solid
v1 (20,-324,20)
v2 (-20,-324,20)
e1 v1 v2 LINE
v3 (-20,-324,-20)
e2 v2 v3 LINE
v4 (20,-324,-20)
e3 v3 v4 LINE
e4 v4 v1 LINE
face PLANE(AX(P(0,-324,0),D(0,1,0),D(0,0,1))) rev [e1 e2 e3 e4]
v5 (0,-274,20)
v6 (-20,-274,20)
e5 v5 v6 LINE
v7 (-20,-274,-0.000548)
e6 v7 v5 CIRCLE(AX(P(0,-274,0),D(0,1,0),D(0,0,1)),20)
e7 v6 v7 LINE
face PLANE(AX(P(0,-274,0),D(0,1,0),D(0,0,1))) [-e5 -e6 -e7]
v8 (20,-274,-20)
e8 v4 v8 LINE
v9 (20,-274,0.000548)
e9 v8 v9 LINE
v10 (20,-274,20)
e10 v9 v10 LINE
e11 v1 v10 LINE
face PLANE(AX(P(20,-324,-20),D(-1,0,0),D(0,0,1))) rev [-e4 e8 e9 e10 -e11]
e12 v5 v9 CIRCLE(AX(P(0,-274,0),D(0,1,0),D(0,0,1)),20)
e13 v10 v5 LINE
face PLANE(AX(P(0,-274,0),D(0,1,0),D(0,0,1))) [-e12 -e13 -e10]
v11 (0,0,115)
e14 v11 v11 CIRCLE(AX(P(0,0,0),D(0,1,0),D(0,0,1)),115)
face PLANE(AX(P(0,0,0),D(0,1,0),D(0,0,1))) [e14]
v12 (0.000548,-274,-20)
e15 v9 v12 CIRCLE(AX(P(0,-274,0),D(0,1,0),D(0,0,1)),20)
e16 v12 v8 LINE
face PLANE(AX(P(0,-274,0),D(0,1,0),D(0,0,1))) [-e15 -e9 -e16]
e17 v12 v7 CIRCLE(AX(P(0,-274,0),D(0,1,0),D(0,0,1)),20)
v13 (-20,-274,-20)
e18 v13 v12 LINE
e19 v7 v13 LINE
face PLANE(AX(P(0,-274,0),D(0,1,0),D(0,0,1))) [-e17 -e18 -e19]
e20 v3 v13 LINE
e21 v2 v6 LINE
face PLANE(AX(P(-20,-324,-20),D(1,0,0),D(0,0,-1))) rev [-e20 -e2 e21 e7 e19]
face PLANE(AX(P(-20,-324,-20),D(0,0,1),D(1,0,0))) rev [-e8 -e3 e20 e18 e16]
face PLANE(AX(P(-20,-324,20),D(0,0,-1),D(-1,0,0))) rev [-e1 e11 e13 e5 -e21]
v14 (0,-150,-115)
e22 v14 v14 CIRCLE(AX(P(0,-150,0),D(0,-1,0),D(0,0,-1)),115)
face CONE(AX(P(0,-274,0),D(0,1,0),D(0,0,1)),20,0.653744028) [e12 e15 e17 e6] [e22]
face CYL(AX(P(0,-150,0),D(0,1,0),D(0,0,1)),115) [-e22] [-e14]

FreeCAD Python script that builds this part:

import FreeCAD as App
import Part
import Sketcher


def add_polygon(sketch, points):
    """Adds a closed chain of lines whose ends are joined by coincident constraints."""
    first, n = sketch.GeometryCount, len(points)
    for a, b in zip(points, points[1:] + points[:1]):
        sketch.addGeometry(Part.LineSegment(App.Vector(*a, 0), App.Vector(*b, 0)), False)
    for i in range(n):
        sketch.addConstraint(Sketcher.Constraint("Coincident", first + i, 2, first + (i + 1) % n, 1))

doc = App.newDocument("Part")
body = doc.addObject("PartDesign::Body", "Body")

sketch1 = body.newObject("Sketcher::SketchObject", "Sketch")
sketch1.AttachmentSupport = (doc.getObject("XZ_Plane"), [""])
sketch1.MapMode = "FlatFace"
sketch1.addGeometry(Part.Circle(App.Vector(0, 0, 0), App.Vector(0, 0, 1), 115), False)
sketch1.addConstraint(Sketcher.Constraint("Coincident", 0, 3, -1, 1))
sketch1.addConstraint(Sketcher.Constraint("Diameter", 0, 230.0))
pad1 = body.newObject("PartDesign::Pad", "Pad")
pad1.Profile = sketch1
pad1.Length = 150

sketch2 = body.newObject("Sketcher::SketchObject", "Sketch001")
sketch2.AttachmentSupport = (doc.getObject("XZ_Plane"), [""])
sketch2.MapMode = "FlatFace"
sketch2.AttachmentOffset = App.Placement(App.Vector(0, 0, 274), App.Rotation())
sketch2.addGeometry(Part.Circle(App.Vector(0, 0, 0), App.Vector(0, 0, 1), 20), False)
sketch2.addConstraint(Sketcher.Constraint("Coincident", 0, 3, -1, 1))
sketch2.addConstraint(Sketcher.Constraint("Diameter", 0, 40.0))

sketch3 = body.newObject("Sketcher::SketchObject", "Sketch002")
sketch3.AttachmentSupport = (doc.getObject("XZ_Plane"), [""])
sketch3.MapMode = "FlatFace"
sketch3.AttachmentOffset = App.Placement(App.Vector(0, 0, 150), App.Rotation())
sketch3.addGeometry(Part.Circle(App.Vector(0, 0, 0), App.Vector(0, 0, 1), 115), False)
sketch3.addConstraint(Sketcher.Constraint("Coincident", 0, 3, -1, 1))
sketch3.addConstraint(Sketcher.Constraint("Diameter", 0, 230.0))

additiveloft = body.newObject("PartDesign::AdditiveLoft", "AdditiveLoft")
additiveloft.Profile = sketch2
additiveloft.Sections = [sketch3]

sketch4 = body.newObject("Sketcher::SketchObject", "Sketch003")
sketch4.AttachmentSupport = (doc.getObject("XZ_Plane"), [""])
sketch4.MapMode = "FlatFace"
sketch4.AttachmentOffset = App.Placement(App.Vector(0, 0, 274), App.Rotation())
add_polygon(sketch4, [(-20, 20), (-20, -20), (20, -20), (20, 20)])
sketch4.addConstraint(Sketcher.Constraint("Vertical", 0))
sketch4.addConstraint(Sketcher.Constraint("Horizontal", 1))
sketch4.addConstraint(Sketcher.Constraint("Vertical", 2))
sketch4.addConstraint(Sketcher.Constraint("Horizontal", 3))
sketch4.addConstraint(Sketcher.Constraint("Symmetric", 0, 2, 2, 2, -1, 1))
sketch4.addConstraint(Sketcher.Constraint("Equal", 3, 0))
sketch4.addConstraint(Sketcher.Constraint("DistanceX", 1, 1, 1, 2, 40.0))
pad2 = body.newObject("PartDesign::Pad", "Pad001")
pad2.Profile = sketch4
pad2.Length = 50

doc.recompute()
